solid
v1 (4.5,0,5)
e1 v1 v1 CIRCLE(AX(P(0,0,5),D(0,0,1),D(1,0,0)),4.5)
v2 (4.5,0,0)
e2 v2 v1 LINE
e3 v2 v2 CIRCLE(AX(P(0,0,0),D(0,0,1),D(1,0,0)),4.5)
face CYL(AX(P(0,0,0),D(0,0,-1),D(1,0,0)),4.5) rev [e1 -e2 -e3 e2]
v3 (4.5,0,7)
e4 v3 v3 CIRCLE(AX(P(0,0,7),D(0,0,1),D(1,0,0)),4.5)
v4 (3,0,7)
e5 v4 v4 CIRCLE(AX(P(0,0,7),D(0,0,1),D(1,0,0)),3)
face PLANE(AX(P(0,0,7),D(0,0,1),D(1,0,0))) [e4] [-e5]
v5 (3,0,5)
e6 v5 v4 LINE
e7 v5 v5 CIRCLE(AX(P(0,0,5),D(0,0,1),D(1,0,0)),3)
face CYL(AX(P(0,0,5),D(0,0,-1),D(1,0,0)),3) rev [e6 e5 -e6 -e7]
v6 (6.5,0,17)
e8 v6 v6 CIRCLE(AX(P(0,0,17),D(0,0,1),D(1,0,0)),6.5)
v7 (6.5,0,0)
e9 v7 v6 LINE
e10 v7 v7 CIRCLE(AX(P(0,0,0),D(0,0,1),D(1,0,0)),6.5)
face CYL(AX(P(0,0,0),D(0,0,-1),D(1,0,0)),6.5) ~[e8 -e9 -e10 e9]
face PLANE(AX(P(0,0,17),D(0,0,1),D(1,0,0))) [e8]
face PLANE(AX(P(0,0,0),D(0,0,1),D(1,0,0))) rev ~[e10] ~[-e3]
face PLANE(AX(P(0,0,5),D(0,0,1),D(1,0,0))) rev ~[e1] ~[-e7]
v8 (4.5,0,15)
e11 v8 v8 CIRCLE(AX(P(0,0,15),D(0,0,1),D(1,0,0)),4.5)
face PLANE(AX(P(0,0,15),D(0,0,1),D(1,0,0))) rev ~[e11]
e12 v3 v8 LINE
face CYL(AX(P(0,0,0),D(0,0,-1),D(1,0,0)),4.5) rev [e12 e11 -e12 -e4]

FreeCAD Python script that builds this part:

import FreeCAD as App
import Part
import Sketcher
from FreeCAD import Vector

doc = App.newDocument("Part")
body = doc.addObject("PartDesign::Body", "Body")

sketch1 = body.newObject("Sketcher::SketchObject", "Sketch")
sketch1.AttachmentSupport = (doc.getObject("XY_Plane"), [""])
sketch1.MapMode = "FlatFace"
sketch1.addGeometry([
    Part.Circle(Vector(0, 0, 0), Vector(0, 0, 1), 6.5),
    Part.Circle(Vector(0, 0, 0), Vector(0, 0, 1), 4.5),
], False)
sketch1.addConstraint([
    Sketcher.Constraint("Coincident", 0, 3, -1, 1),
    Sketcher.Constraint("Coincident", 1, 3, -1, 1),
    Sketcher.Constraint("Diameter", 0, 13.0),
    Sketcher.Constraint("Diameter", 1, 9.0),
])
pad1 = body.newObject("PartDesign::Pad", "Pad")
pad1.Profile = sketch1
pad1.Length = 17

sketch2 = body.newObject("Sketcher::SketchObject", "Sketch001")
sketch2.AttachmentSupport = (doc.getObject("XY_Plane"), [""])
sketch2.MapMode = "FlatFace"
sketch2.AttachmentOffset = App.Placement(Vector(0, 0, 5), App.Rotation())
sketch2.addGeometry([
    Part.Circle(Vector(0, 0, 0), Vector(0, 0, 1), 4.5),
    Part.Circle(Vector(0, 0, 0), Vector(0, 0, 1), 3),
], False)
sketch2.addConstraint([
    Sketcher.Constraint("Coincident", 0, 3, -1, 1),
    Sketcher.Constraint("Coincident", 1, 3, -1, 1),
    Sketcher.Constraint("Diameter", 0, 9.0),
    Sketcher.Constraint("Diameter", 1, 6.0),
])
pad2 = body.newObject("PartDesign::Pad", "Pad001")
pad2.Profile = sketch2
pad2.Length = 2

sketch3 = body.newObject("Sketcher::SketchObject", "Sketch002")
sketch3.AttachmentSupport = (doc.getObject("XY_Plane"), [""])
sketch3.MapMode = "FlatFace"
sketch3.AttachmentOffset = App.Placement(Vector(0, 0, 15), App.Rotation())
sketch3.addGeometry(Part.Circle(Vector(0, 0, 0), Vector(0, 0, 1), 4.5), False)
sketch3.addConstraint([
    Sketcher.Constraint("Coincident", 0, 3, -1, 1),
    Sketcher.Constraint("Diameter", 0, 9.0),
])
pad3 = body.newObject("PartDesign::Pad", "Pad002")
pad3.Profile = sketch3
pad3.Length = 2

doc.recompute()
